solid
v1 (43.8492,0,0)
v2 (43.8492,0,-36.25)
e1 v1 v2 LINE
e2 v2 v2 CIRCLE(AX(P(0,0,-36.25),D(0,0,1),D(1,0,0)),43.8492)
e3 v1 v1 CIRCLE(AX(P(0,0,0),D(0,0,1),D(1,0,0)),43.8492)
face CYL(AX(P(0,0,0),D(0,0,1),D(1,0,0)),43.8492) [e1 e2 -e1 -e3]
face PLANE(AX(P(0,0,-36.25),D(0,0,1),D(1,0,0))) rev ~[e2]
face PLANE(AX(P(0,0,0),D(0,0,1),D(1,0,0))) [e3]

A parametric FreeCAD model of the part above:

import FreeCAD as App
import Part
import Sketcher
from FreeCAD import Vector

doc = App.newDocument("Part")
body = doc.addObject("PartDesign::Body", "Body")

# Sketch on XY plane
sketch1 = body.newObject("Sketcher::SketchObject", "Sketch")
sketch1.AttachmentSupport = (doc.getObject("XY_Plane"), [""])
sketch1.MapMode = "FlatFace"
sketch1.addGeometry(Part.Circle(Vector(0, 0, 0), Vector(0, 0, 1), 43.8492), False)
sketch1.addConstraint(Sketcher.Constraint("Coincident", 0, 3, -1, 1))
sketch1.addConstraint(Sketcher.Constraint("Diameter", 0, 87.6984))
pad1 = body.newObject("PartDesign::Pad", "Pad")
pad1.Profile = sketch1
pad1.Length = 36.25
pad1.Reversed = True

doc.recompute()
